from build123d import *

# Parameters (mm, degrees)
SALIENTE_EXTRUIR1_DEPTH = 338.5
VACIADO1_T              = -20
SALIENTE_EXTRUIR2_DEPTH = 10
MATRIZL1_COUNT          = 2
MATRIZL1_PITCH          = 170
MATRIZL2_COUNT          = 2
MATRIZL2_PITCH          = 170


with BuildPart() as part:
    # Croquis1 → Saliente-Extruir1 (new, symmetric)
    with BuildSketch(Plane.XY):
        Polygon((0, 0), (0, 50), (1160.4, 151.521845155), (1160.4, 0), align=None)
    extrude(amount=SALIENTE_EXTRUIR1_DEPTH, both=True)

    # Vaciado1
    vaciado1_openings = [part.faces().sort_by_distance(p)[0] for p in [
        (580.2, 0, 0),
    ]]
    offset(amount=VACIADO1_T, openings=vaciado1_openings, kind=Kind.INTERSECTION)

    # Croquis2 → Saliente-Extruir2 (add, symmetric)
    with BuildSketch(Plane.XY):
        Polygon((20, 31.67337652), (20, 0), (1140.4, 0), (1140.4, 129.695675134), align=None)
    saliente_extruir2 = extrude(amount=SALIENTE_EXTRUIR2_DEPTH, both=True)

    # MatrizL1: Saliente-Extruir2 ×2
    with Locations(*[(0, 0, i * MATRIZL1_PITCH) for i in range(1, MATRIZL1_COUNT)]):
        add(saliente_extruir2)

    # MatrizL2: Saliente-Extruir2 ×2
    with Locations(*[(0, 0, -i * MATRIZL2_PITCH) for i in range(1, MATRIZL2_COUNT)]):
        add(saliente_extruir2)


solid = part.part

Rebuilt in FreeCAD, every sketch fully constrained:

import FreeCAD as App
import Part
import Sketcher
from FreeCAD import Vector
Q = App.Units.Quantity


def faces_at(feature, points):
    """Names of the faces that lie closest to the given points."""
    faces = feature.Shape.Faces
    near = lambda p: min(range(len(faces)), key=lambda i: faces[i].distToShape(Part.Vertex(*p))[0])
    return sorted({f"Face{near(p) + 1}" for p in points})


def add_polygon(sketch, points):
    """Adds a closed chain of lines whose ends are joined by coincident constraints."""
    first, n = sketch.GeometryCount, len(points)
    for a, b in zip(points, points[1:] + points[:1]):
        sketch.addGeometry(Part.LineSegment(App.Vector(*a, 0), App.Vector(*b, 0)), False)
    for i in range(n):
        sketch.addConstraint(Sketcher.Constraint("Coincident", first + i, 2, first + (i + 1) % n, 1))

doc = App.newDocument("Part")
body = doc.addObject("PartDesign::Body", "Body")

# Sketch on XY plane
sketch1 = body.newObject("Sketcher::SketchObject", "Sketch")
sketch1.AttachmentSupport = (doc.getObject("XY_Plane"), [""])
sketch1.MapMode = "FlatFace"
add_polygon(sketch1, [(0, 50), (0, 0), (1160, 0), (1160, 152)])  # lines 0-3
sketch1.addConstraint(Sketcher.Constraint("Vertical", 0))
sketch1.addConstraint(Sketcher.Constraint("Horizontal", 1))
sketch1.addConstraint(Sketcher.Constraint("Vertical", 2))
sketch1.addConstraint(Sketcher.Constraint("Coincident", 0, 2, -1, 1))
sketch1.addConstraint(Sketcher.Constraint("DistanceY", 0, 2, 0, 1, Q("50 mm")))
sketch1.addConstraint(Sketcher.Constraint("Angle", 3, Q("-175 deg")))
sketch1.addConstraint(Sketcher.Constraint("DistanceX", 1, 1, 1, 2, Q("1160.4 mm")))
pad1 = body.newObject("PartDesign::Pad", "Pad")
pad1.Profile = sketch1
pad1.Length = 677
pad1.Midplane = True
doc.recompute()

thickness = body.newObject("PartDesign::Thickness", "Thickness")
thickness.Base = (pad1, faces_at(pad1, [(580.2, 0, 0)]))
thickness.Value = 20
thickness.Reversed = True
thickness.Join = "Intersection"

# Sketch on XY plane
sketch2 = body.newObject("Sketcher::SketchObject", "Sketch001")
sketch2.AttachmentSupport = (doc.getObject("XY_Plane"), [""])
sketch2.MapMode = "FlatFace"
add_polygon(sketch2, [(20, 32), (20, 0), (1140, 0), (1140, 130)])  # lines 0-3
sketch2.addConstraint(Sketcher.Constraint("Vertical", 0))
sketch2.addConstraint(Sketcher.Constraint("Horizontal", 1))
sketch2.addConstraint(Sketcher.Constraint("Vertical", 2))
sketch2.addConstraint(Sketcher.Constraint("PointOnObject", 0, 2, -1))
sketch2.addConstraint(Sketcher.Constraint("Angle", 3, Q("-175 deg")))
sketch2.addConstraint(Sketcher.Constraint("DistanceX", 1, 1, 1, 2, Q("1120.4 mm")))
sketch2.addConstraint(Sketcher.Constraint("DistanceX", -1, 1, 0, 2, Q("20 mm")))
sketch2.addConstraint(Sketcher.Constraint("DistanceY", 0, 2, 0, 1, Q("31.673377 mm")))
pad2 = body.newObject("PartDesign::Pad", "Pad001")
pad2.Profile = sketch2
pad2.Length = 20
pad2.Midplane = True
doc.recompute()

linearpattern = body.newObject("PartDesign::LinearPattern", "LinearPattern")
linearpattern.Originals = [pad2]
linearpattern.Direction = (doc.getObject("Z_Axis"), [""])
linearpattern.Mode = "offset"
linearpattern.Offset = 170
linearpattern.Occurrences = 2
body.Tip = linearpattern
doc.recompute()

linearpattern2 = body.newObject("PartDesign::LinearPattern", "LinearPattern001")
linearpattern2.Originals = [pad2]
linearpattern2.Direction = (doc.getObject("Z_Axis"), [""])
linearpattern2.Mode = "offset"
linearpattern2.Offset = 170
linearpattern2.Occurrences = 2
linearpattern2.Reversed = True
body.Tip = linearpattern2

doc.recompute()
